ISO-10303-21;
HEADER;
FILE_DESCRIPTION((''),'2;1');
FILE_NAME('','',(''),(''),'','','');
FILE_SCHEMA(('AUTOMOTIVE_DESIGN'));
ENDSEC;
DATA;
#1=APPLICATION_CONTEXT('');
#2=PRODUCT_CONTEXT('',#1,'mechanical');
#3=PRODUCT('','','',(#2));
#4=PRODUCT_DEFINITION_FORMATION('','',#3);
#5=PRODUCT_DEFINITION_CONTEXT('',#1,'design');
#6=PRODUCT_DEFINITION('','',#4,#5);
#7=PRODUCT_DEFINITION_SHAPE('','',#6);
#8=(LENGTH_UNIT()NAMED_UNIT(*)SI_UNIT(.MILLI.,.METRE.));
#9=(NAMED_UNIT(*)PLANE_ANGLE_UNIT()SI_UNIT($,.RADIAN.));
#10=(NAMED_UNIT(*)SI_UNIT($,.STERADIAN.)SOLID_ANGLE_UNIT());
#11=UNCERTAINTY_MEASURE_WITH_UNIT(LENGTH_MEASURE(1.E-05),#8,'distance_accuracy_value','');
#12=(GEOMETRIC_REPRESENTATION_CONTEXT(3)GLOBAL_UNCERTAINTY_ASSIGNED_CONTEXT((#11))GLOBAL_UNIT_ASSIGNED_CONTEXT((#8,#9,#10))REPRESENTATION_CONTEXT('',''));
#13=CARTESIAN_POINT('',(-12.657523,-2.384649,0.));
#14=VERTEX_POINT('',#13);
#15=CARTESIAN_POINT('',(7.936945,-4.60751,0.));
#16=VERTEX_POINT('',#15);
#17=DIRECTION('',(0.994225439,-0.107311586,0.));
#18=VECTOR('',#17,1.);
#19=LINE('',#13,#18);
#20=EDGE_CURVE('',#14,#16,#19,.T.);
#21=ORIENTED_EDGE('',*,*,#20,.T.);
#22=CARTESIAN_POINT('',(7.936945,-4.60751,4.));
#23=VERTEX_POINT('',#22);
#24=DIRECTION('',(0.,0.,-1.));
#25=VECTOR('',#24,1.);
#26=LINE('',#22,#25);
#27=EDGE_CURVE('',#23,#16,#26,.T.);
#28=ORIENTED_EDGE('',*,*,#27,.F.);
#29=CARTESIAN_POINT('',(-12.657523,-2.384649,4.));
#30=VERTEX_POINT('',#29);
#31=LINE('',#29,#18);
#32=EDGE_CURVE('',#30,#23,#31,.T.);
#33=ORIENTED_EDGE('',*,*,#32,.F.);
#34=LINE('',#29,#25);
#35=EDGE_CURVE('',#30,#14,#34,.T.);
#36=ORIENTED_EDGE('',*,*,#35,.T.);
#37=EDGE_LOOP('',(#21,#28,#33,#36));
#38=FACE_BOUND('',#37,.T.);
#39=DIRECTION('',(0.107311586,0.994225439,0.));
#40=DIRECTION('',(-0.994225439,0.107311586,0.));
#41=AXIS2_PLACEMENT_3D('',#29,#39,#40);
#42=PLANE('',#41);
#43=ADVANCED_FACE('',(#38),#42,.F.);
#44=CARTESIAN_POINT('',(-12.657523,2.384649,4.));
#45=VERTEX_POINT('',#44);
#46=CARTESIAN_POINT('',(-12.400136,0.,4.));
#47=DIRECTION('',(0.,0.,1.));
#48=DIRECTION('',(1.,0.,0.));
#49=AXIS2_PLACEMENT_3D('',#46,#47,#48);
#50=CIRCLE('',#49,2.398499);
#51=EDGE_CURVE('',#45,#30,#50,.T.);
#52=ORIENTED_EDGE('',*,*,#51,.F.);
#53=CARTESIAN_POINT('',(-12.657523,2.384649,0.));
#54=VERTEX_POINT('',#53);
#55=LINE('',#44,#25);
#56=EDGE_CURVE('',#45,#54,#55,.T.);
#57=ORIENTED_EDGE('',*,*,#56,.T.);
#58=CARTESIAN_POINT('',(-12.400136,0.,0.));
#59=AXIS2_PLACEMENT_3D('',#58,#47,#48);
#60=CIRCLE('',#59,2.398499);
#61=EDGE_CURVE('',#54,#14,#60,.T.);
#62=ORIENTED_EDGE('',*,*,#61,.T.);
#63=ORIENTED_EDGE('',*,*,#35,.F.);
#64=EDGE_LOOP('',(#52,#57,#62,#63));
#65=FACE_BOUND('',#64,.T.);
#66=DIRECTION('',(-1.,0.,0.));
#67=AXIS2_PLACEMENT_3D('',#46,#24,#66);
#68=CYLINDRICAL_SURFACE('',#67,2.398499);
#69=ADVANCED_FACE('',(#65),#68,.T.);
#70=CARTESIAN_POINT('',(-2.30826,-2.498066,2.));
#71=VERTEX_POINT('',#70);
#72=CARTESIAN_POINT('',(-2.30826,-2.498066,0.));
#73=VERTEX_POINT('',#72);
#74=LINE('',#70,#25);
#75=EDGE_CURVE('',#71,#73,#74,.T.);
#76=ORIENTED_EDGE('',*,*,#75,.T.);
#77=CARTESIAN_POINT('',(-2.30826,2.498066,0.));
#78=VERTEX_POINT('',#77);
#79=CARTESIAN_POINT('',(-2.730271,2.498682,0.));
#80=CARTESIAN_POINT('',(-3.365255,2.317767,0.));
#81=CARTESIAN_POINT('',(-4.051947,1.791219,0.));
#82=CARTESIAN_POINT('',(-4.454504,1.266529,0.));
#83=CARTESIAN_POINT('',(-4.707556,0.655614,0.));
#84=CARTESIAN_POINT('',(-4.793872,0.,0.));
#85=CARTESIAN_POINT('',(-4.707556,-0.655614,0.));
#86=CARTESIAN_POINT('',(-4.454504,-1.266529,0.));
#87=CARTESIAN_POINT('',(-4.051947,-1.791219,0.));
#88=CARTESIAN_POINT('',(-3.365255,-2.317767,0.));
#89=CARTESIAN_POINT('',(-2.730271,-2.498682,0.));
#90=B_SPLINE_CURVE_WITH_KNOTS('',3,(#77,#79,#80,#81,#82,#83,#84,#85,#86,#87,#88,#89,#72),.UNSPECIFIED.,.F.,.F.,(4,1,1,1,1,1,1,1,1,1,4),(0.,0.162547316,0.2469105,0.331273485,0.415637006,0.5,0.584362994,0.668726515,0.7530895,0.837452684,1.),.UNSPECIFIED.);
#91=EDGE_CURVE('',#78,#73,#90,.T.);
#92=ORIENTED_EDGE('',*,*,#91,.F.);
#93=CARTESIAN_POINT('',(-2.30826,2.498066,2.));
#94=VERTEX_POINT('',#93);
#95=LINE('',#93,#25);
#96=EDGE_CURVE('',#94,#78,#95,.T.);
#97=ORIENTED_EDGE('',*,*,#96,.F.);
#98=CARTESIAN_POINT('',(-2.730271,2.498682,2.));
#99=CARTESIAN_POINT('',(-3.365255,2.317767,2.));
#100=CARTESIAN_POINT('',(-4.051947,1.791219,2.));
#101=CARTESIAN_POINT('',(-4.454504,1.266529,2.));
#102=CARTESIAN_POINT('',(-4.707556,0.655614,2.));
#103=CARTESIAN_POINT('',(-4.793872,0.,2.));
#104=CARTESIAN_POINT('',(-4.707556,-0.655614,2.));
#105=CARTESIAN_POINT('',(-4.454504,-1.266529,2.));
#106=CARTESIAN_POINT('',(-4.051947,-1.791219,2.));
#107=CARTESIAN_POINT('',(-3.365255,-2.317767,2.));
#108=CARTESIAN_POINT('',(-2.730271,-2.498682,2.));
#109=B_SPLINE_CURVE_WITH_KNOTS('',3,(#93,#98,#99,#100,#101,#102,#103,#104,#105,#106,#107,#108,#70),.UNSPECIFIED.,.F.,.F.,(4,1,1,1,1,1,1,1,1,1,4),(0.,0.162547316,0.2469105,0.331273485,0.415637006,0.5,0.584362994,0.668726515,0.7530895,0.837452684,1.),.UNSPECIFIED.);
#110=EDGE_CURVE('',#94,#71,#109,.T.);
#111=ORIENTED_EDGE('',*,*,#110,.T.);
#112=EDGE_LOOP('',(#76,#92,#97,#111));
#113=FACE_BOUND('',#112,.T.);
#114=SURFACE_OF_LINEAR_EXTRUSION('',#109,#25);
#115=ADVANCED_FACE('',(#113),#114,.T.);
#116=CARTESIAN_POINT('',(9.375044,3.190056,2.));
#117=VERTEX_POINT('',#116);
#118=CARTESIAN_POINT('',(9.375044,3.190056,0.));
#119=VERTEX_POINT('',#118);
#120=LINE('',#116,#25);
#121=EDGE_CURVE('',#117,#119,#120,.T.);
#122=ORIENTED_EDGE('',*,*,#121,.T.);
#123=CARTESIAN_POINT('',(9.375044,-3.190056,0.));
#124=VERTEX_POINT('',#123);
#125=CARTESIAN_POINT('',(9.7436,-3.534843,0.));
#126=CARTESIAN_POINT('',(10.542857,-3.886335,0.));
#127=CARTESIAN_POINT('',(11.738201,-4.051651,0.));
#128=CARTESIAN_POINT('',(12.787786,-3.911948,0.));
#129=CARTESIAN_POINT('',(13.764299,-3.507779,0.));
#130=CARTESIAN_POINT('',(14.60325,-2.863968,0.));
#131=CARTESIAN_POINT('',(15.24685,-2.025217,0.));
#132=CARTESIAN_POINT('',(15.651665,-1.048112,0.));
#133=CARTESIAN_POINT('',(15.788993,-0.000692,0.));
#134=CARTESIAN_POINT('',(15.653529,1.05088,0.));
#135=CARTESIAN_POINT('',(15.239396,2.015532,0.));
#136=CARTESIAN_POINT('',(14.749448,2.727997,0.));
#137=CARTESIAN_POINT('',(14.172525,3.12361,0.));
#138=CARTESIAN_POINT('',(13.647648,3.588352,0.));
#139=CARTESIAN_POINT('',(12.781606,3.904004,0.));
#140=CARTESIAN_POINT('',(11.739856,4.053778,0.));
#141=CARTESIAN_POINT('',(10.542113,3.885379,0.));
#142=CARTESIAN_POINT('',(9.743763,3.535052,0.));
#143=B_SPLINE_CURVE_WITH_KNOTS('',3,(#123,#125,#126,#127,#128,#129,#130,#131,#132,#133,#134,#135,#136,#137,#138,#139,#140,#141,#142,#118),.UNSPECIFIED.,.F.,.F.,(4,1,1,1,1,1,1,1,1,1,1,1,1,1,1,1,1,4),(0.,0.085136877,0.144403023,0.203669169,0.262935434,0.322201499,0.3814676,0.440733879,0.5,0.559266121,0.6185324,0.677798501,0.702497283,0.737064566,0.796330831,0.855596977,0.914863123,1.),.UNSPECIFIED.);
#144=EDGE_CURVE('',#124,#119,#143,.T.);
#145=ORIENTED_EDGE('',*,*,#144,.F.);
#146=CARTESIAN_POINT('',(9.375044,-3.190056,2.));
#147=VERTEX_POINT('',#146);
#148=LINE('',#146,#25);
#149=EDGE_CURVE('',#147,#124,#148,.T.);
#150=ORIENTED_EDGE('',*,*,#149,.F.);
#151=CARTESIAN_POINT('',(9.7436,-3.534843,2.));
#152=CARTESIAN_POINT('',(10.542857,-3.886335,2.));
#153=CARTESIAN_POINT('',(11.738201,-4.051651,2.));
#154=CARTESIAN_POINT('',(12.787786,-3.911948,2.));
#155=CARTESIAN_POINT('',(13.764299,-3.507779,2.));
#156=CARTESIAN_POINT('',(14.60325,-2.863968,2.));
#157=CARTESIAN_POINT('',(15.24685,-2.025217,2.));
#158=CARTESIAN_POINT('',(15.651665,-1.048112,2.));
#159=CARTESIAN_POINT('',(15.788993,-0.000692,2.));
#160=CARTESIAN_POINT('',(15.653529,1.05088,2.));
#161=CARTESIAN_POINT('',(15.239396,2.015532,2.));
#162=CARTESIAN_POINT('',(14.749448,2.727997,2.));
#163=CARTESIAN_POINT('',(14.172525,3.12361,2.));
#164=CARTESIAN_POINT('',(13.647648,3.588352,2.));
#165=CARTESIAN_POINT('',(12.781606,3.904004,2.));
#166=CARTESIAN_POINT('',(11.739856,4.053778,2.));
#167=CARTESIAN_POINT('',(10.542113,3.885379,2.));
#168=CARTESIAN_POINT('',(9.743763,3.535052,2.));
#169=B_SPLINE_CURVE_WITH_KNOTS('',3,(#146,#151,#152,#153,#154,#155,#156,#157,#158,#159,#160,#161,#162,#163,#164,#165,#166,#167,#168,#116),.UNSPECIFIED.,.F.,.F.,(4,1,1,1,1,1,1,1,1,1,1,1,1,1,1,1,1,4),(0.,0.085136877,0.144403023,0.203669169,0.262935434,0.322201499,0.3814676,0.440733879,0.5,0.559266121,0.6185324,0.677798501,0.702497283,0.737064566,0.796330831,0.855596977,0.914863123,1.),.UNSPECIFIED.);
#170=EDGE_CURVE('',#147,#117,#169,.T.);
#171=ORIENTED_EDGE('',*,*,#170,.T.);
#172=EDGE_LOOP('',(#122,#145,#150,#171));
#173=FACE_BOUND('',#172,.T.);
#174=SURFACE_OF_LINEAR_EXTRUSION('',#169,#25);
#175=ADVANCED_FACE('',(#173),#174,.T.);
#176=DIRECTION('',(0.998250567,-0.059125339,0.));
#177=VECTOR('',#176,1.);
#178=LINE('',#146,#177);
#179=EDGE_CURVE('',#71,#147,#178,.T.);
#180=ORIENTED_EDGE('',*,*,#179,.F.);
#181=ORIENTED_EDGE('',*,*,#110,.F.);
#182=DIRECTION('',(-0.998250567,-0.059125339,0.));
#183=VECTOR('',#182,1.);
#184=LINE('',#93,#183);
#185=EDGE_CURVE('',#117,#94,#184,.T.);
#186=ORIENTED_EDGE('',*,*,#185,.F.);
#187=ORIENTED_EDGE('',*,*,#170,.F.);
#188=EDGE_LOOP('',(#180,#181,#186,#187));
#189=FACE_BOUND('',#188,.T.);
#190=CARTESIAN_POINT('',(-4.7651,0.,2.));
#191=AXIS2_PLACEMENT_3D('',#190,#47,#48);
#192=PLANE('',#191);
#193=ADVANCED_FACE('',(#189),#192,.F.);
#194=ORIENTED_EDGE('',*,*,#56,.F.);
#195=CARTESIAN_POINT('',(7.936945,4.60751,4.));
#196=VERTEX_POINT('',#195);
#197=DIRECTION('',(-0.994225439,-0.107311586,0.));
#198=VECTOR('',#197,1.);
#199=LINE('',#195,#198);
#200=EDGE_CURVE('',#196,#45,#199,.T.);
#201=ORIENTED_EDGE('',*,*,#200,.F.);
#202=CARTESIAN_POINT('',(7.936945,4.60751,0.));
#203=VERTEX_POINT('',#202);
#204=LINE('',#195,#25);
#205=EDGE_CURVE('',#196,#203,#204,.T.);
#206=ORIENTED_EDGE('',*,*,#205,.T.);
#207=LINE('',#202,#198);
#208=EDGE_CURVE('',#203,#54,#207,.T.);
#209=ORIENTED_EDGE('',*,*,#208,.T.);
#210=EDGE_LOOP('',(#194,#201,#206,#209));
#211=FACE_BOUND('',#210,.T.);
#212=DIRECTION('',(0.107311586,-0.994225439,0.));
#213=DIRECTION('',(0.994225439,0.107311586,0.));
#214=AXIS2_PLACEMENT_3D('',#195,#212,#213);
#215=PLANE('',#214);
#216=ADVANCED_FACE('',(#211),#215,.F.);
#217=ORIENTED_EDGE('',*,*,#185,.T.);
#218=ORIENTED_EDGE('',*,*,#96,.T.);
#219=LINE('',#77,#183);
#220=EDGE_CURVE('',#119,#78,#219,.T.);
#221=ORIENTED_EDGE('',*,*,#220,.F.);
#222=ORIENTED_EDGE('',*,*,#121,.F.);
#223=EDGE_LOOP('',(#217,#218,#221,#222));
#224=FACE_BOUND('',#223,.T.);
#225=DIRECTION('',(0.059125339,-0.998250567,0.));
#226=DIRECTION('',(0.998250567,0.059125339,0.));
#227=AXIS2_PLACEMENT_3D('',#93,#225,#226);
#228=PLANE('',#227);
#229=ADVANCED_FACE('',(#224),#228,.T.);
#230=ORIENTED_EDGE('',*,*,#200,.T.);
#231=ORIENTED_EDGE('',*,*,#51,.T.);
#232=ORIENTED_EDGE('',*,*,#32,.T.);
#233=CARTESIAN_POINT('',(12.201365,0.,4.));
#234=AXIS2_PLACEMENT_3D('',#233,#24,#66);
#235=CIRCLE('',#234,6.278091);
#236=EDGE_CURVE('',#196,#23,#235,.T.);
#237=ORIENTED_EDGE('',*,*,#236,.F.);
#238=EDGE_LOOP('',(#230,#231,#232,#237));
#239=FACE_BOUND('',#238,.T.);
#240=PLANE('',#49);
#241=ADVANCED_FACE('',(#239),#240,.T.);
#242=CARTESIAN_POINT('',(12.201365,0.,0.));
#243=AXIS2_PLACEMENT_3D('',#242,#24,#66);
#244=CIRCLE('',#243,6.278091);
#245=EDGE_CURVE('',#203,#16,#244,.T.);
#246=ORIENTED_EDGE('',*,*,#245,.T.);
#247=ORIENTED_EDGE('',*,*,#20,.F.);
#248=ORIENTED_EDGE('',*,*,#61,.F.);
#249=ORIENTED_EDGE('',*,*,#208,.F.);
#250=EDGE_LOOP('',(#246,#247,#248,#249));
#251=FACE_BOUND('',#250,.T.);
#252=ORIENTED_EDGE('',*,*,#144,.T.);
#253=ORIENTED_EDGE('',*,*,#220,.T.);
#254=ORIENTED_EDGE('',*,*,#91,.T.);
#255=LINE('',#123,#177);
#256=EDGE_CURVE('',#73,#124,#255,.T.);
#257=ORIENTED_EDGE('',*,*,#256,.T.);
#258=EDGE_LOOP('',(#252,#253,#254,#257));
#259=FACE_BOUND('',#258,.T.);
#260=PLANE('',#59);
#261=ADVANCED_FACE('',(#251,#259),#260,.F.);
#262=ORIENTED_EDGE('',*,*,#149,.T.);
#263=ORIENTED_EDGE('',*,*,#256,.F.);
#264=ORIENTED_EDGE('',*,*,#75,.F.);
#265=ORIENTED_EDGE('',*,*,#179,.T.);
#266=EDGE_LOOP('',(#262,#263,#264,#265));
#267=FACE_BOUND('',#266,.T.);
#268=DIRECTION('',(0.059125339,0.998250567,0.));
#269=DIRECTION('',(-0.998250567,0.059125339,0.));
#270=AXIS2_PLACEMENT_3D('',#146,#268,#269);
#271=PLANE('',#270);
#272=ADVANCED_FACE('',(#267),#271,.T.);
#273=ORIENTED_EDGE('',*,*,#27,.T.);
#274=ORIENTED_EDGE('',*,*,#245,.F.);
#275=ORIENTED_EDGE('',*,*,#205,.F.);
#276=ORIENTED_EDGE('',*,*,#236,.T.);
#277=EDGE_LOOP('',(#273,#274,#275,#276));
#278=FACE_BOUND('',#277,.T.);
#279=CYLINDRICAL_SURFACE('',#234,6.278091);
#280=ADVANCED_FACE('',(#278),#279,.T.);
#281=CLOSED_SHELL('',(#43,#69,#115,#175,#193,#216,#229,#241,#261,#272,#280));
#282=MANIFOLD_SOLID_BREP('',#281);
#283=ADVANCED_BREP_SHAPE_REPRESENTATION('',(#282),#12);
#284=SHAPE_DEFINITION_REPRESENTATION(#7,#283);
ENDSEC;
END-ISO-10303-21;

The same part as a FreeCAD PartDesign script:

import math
import FreeCAD as App
import Part
import Sketcher
from FreeCAD import Vector
Q = App.Units.Quantity

doc = App.newDocument("Part")
body = doc.addObject("PartDesign::Body", "Body")

# Sketch on XY plane
sketch1 = body.newObject("Sketcher::SketchObject", "Sketch")
sketch1.AttachmentSupport = (doc.getObject("XY_Plane"), [""])
sketch1.MapMode = "FlatFace"
sketch1.addGeometry([
    Part.LineSegment(Vector(7.936945, 4.60751, 0), Vector(-12.657523, 2.384649, 0)),
    Part.ArcOfCircle(Part.Circle(Vector(-12.400136, 0, 0), Vector(0, 0, 1), 2.398499), math.radians(96.160363), math.radians(263.839637)),
    Part.LineSegment(Vector(-12.657523, -2.384649, 0), Vector(7.936945, -4.60751, 0)),
    Part.ArcOfCircle(Part.Circle(Vector(12.201365, 0, 0), Vector(0, 0, 1), 6.278091), math.radians(-132.785393), math.radians(132.785393)),
], False)
sketch1.addConstraint([
    Sketcher.Constraint("Coincident", 0, 2, 1, 1),
    Sketcher.Constraint("Coincident", 1, 2, 2, 1),
    Sketcher.Constraint("Coincident", 2, 2, 3, 1),
    Sketcher.Constraint("Coincident", 3, 2, 0, 1),
    Sketcher.Constraint("PointOnObject", 1, 3, -1),
    Sketcher.Constraint("PointOnObject", 3, 3, -1),
    Sketcher.Constraint("Radius", 1, Q("2.398499 mm")),
    Sketcher.Constraint("Radius", 3, Q("6.278091 mm")),
    Sketcher.Constraint("DistanceX", 1, 3, 3, 3, Q("24.601501 mm")),
    Sketcher.Constraint("DistanceY", -1, 1, 0, 2, Q("2.384649 mm")),
    Sketcher.Constraint("DistanceY", 1, 2, -1, 1, Q("2.384649 mm")),
    Sketcher.Constraint("DistanceY", 2, 2, -1, 1, Q("4.60751 mm")),
    Sketcher.Constraint("DistanceY", -1, 1, 3, 2, Q("4.60751 mm")),
    Sketcher.Constraint("DistanceX", 1, 3, -1, 1, Q("12.400136 mm")),
])
pad1 = body.newObject("PartDesign::Pad", "Pad")
pad1.Profile = sketch1
pad1.Length = 4

# Sketch on XY plane
sketch2 = body.newObject("Sketcher::SketchObject", "Sketch001")
sketch2.AttachmentSupport = (doc.getObject("XY_Plane"), [""])
sketch2.MapMode = "FlatFace"
sketch2.addGeometry([
    Part.LineSegment(Vector(9.375044, 3.190056, 0), Vector(-2.30826, 2.498066, 0)),
    Part.BSplineCurve([Vector(-2.30826, -2.498066, 0), Vector(-2.730271, -2.498682, 0), Vector(-3.365255, -2.317767, 0), Vector(-4.051947, -1.791219, 0), Vector(-4.454504, -1.266529, 0), Vector(-4.707556, -0.655614, 0), Vector(-4.793872, 0, 0), Vector(-4.707556, 0.655614, 0), Vector(-4.454504, 1.266529, 0), Vector(-4.051947, 1.791219, 0), Vector(-3.365255, 2.317767, 0), Vector(-2.730271, 2.498682, 0), Vector(-2.30826, 2.498066, 0)], [4, 1, 1, 1, 1, 1, 1, 1, 1, 1, 4], [0, 0.162547316, 0.2469105, 0.331273485, 0.415637006, 0.5, 0.584362994, 0.668726515, 0.7530895, 0.837452684, 1], False, 3, [1, 1, 1, 1, 1, 1, 1, 1, 1, 1, 1, 1, 1], False),
    Part.LineSegment(Vector(-2.30826, -2.498066, 0), Vector(9.375044, -3.190056, 0)),
    Part.BSplineCurve([Vector(9.375044, 3.190056, 0), Vector(9.743763, 3.535052, 0), Vector(10.542113, 3.885379, 0), Vector(11.739856, 4.053778, 0), Vector(12.781606, 3.904004, 0), Vector(13.647648, 3.588352, 0), Vector(14.172525, 3.12361, 0), Vector(14.749448, 2.727997, 0), Vector(15.239396, 2.015532, 0), Vector(15.653529, 1.05088, 0), Vector(15.788993, -0.000692, 0), Vector(15.651665, -1.048112, 0), Vector(15.24685, -2.025217, 0), Vector(14.60325, -2.863968, 0), Vector(13.764299, -3.507779, 0), Vector(12.787786, -3.911948, 0), Vector(11.738201, -4.051651, 0), Vector(10.542857, -3.886335, 0), Vector(9.7436, -3.534843, 0), Vector(9.375044, -3.190056, 0)], [4, 1, 1, 1, 1, 1, 1, 1, 1, 1, 1, 1, 1, 1, 1, 1, 1, 4], [0, 0.085136877, 0.144403023, 0.203669169, 0.262935434, 0.297502717, 0.322201499, 0.3814676, 0.440733879, 0.5, 0.559266121, 0.6185324, 0.677798501, 0.737064566, 0.796330831, 0.855596977, 0.914863123, 1], False, 3, [1, 1, 1, 1, 1, 1, 1, 1, 1, 1, 1, 1, 1, 1, 1, 1, 1, 1, 1, 1], False),
], False)
sketch2.addConstraint([
    Sketcher.Constraint("Block", 1),
    Sketcher.Constraint("Block", 3),
    Sketcher.Constraint("Coincident", 0, 2, 1, 2),
    Sketcher.Constraint("Coincident", 1, 1, 2, 1),
    Sketcher.Constraint("Coincident", 2, 2, 3, 2),
    Sketcher.Constraint("Coincident", 3, 1, 0, 1),
])
pocket1 = body.newObject("PartDesign::Pocket", "Pocket")
pocket1.Profile = sketch2
pocket1.Length = 2
pocket1.Reversed = True

doc.recompute()
